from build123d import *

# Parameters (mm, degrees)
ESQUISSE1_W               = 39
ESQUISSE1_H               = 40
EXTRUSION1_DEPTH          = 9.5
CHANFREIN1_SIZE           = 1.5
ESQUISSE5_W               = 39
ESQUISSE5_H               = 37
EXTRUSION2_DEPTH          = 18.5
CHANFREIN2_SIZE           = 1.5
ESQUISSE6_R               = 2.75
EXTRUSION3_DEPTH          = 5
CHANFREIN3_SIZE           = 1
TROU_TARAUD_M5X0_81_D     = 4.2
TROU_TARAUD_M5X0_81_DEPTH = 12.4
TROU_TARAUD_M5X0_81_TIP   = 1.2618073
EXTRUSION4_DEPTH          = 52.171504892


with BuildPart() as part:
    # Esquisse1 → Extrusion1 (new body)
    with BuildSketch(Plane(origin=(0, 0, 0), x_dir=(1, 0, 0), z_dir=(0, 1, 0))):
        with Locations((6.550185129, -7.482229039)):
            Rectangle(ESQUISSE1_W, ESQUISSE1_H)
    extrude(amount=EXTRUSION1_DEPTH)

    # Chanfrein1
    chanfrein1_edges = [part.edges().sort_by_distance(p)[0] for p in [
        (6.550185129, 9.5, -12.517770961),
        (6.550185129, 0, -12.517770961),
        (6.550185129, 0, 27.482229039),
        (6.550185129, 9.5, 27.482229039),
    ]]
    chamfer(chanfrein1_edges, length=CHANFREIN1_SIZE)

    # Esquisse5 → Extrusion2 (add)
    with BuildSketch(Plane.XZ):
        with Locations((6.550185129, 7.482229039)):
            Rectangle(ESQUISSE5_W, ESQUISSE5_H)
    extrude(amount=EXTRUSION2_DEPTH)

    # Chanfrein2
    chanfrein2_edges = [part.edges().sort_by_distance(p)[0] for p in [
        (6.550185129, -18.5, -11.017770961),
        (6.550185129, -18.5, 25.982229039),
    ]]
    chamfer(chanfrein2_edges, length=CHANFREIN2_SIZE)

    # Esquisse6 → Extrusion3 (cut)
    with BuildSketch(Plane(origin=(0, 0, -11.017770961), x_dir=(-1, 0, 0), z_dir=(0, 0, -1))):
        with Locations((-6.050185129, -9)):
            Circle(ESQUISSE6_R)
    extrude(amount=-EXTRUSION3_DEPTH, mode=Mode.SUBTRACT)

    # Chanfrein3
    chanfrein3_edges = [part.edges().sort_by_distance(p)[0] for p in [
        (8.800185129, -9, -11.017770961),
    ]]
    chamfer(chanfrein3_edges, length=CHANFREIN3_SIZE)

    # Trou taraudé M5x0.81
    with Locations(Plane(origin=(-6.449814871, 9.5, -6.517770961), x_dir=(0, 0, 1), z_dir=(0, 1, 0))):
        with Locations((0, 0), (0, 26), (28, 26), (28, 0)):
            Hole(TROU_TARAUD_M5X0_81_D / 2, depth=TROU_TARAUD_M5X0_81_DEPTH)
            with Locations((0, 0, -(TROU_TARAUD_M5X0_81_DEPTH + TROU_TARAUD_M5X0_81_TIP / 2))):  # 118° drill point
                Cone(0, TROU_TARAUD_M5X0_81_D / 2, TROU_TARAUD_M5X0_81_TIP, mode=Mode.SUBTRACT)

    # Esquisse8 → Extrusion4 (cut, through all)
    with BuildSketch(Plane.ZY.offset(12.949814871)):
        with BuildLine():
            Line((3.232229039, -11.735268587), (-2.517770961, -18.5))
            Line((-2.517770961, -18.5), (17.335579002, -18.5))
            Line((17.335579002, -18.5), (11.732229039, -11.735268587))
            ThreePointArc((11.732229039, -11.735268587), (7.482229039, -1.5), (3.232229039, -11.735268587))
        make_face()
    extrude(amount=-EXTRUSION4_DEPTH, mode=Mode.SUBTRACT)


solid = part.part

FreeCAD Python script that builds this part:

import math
import FreeCAD as App
import Part
import Sketcher


def edges_at(feature, points):
    """Names of the edges that pass closest to the given points."""
    edges = feature.Shape.Edges
    near = lambda p: min(range(len(edges)), key=lambda i: edges[i].distToShape(Part.Vertex(*p))[0])
    return sorted({f"Edge{near(p) + 1}" for p in points})

doc = App.newDocument("Part")
body = doc.addObject("PartDesign::Body", "Body")

# Sketch on XZ plane
sketch1 = body.newObject("Sketcher::SketchObject", "Sketch")
sketch1.AttachmentSupport = (doc.getObject("XZ_Plane"), [""])
sketch1.MapMode = "FlatFace"
sketch1.addGeometry(Part.LineSegment(App.Vector(-13, -13, 0), App.Vector(-13, 27, 0)), False)
sketch1.addGeometry(Part.LineSegment(App.Vector(-13, 27, 0), App.Vector(26, 27, 0)), False)
sketch1.addGeometry(Part.LineSegment(App.Vector(26, 27, 0), App.Vector(26, -13, 0)), False)
sketch1.addGeometry(Part.LineSegment(App.Vector(26, -13, 0), App.Vector(-13, -13, 0)), False)
sketch1.addConstraint(Sketcher.Constraint("Coincident", 0, 2, 1, 1))
sketch1.addConstraint(Sketcher.Constraint("Coincident", 1, 2, 2, 1))
sketch1.addConstraint(Sketcher.Constraint("Coincident", 2, 2, 3, 1))
sketch1.addConstraint(Sketcher.Constraint("Coincident", 3, 2, 0, 1))
sketch1.addConstraint(Sketcher.Constraint("Vertical", 0))
sketch1.addConstraint(Sketcher.Constraint("Horizontal", 1))
sketch1.addConstraint(Sketcher.Constraint("Vertical", 2))
sketch1.addConstraint(Sketcher.Constraint("Horizontal", 3))
sketch1.addConstraint(Sketcher.Constraint("DistanceX", 1, 1, 1, 2, 39.0))
sketch1.addConstraint(Sketcher.Constraint("DistanceY", 0, 1, 0, 2, 40.0))
sketch1.addConstraint(Sketcher.Constraint("DistanceY", -1, 1, 0, 2, 27.482229))
sketch1.addConstraint(Sketcher.Constraint("DistanceX", 0, 2, -1, 1, 12.949815))
pad1 = body.newObject("PartDesign::Pad", "Pad")
pad1.Profile = sketch1
pad1.Length = 9.5
pad1.Reversed = True
doc.recompute()

chamfer = body.newObject("PartDesign::Chamfer", "Chamfer")
chamfer.Base = (pad1, edges_at(pad1, [
    (6.55, 9.5, -12.518),
    (6.55, 0, -12.518),
    (6.55, 0, 27.482),
    (6.55, 9.5, 27.482),
]))
chamfer.Size = 1.5

# Sketch on XZ plane
sketch2 = body.newObject("Sketcher::SketchObject", "Sketch001")
sketch2.AttachmentSupport = (doc.getObject("XZ_Plane"), [""])
sketch2.MapMode = "FlatFace"
sketch2.addGeometry(Part.LineSegment(App.Vector(-13, 26, 0), App.Vector(-13, -11, 0)), False)
sketch2.addGeometry(Part.LineSegment(App.Vector(-13, -11, 0), App.Vector(26, -11, 0)), False)
sketch2.addGeometry(Part.LineSegment(App.Vector(26, -11, 0), App.Vector(26, 26, 0)), False)
sketch2.addGeometry(Part.LineSegment(App.Vector(26, 26, 0), App.Vector(-13, 26, 0)), False)
sketch2.addConstraint(Sketcher.Constraint("Coincident", 0, 2, 1, 1))
sketch2.addConstraint(Sketcher.Constraint("Coincident", 1, 2, 2, 1))
sketch2.addConstraint(Sketcher.Constraint("Coincident", 2, 2, 3, 1))
sketch2.addConstraint(Sketcher.Constraint("Coincident", 3, 2, 0, 1))
sketch2.addConstraint(Sketcher.Constraint("Vertical", 0))
sketch2.addConstraint(Sketcher.Constraint("Horizontal", 1))
sketch2.addConstraint(Sketcher.Constraint("Vertical", 2))
sketch2.addConstraint(Sketcher.Constraint("Horizontal", 3))
sketch2.addConstraint(Sketcher.Constraint("DistanceX", 1, 1, 1, 2, 39.0))
sketch2.addConstraint(Sketcher.Constraint("DistanceY", 0, 2, 0, 1, 37.0))
sketch2.addConstraint(Sketcher.Constraint("DistanceY", 0, 2, -1, 1, 11.017771))
sketch2.addConstraint(Sketcher.Constraint("DistanceX", 0, 2, -1, 1, 12.949815))
pad2 = body.newObject("PartDesign::Pad", "Pad001")
pad2.Profile = sketch2
pad2.Length = 18.5
doc.recompute()

chamfer2 = body.newObject("PartDesign::Chamfer", "Chamfer001")
chamfer2.Base = (pad2, edges_at(pad2, [(6.55, -18.5, -11.018), (6.55, -18.5, 25.982)]))
chamfer2.Size = 1.5

# Sketch on XY plane
sketch3 = body.newObject("Sketcher::SketchObject", "Sketch002")
sketch3.AttachmentSupport = (doc.getObject("XY_Plane"), [""])
sketch3.MapMode = "FlatFace"
sketch3.AttachmentOffset = App.Placement(App.Vector(0, 0, -11.017771), App.Rotation())
sketch3.addGeometry(Part.Circle(App.Vector(6.1, -9, 0), App.Vector(0, 0, 1), 2.8), False)
sketch3.addConstraint(Sketcher.Constraint("Diameter", 0, 5.5))
sketch3.addConstraint(Sketcher.Constraint("DistanceY", 0, 3, -1, 1, 9.0))
sketch3.addConstraint(Sketcher.Constraint("DistanceX", -1, 1, 0, 3, 6.050185))
pocket1 = body.newObject("PartDesign::Pocket", "Pocket")
pocket1.Profile = sketch3
pocket1.Length = 5
pocket1.Reversed = True
doc.recompute()

chamfer3 = body.newObject("PartDesign::Chamfer", "Chamfer002")
chamfer3.Base = (pocket1, edges_at(pocket1, [(8.8, -9, -11.018)]))
chamfer3.Size = 1

# Sketch on XZ plane
sketch4 = body.newObject("Sketcher::SketchObject", "Sketch003")
sketch4.AttachmentSupport = (doc.getObject("XZ_Plane"), [""])
sketch4.MapMode = "FlatFace"
sketch4.AttachmentOffset = App.Placement(App.Vector(0, 0, -9.5), App.Rotation())
sketch4.addGeometry(Part.Circle(App.Vector(-6.4, -6.5, 0), App.Vector(0, 0, 1), 2.1), False)
sketch4.addGeometry(Part.Circle(App.Vector(19.6, -6.5, 0), App.Vector(0, 0, 1), 2.1), False)
sketch4.addGeometry(Part.Circle(App.Vector(19.6, 21.5, 0), App.Vector(0, 0, 1), 2.1), False)
sketch4.addGeometry(Part.Circle(App.Vector(-6.4, 21.5, 0), App.Vector(0, 0, 1), 2.1), False)
sketch4.addConstraint(Sketcher.Constraint("Equal", 0, 1))
sketch4.addConstraint(Sketcher.Constraint("Equal", 1, 2))
sketch4.addConstraint(Sketcher.Constraint("Equal", 2, 3))
sketch4.addConstraint(Sketcher.Constraint("Horizontal", 0, 3, 1, 3))
sketch4.addConstraint(Sketcher.Constraint("Horizontal", 2, 3, 3, 3))
sketch4.addConstraint(Sketcher.Constraint("Vertical", 1, 3, 2, 3))
sketch4.addConstraint(Sketcher.Constraint("Vertical", 0, 3, 3, 3))
sketch4.addConstraint(Sketcher.Constraint("Diameter", 0, 4.2))
sketch4.addConstraint(Sketcher.Constraint("DistanceX", 0, 3, 1, 3, 26.0))
sketch4.addConstraint(Sketcher.Constraint("DistanceY", 1, 3, 2, 3, 28.0))
sketch4.addConstraint(Sketcher.Constraint("DistanceY", 0, 3, -1, 1, 6.517771))
sketch4.addConstraint(Sketcher.Constraint("DistanceX", 0, 3, -1, 1, 6.449815))
doc.recompute()
hole = body.newObject("PartDesign::Hole", "Hole")
hole.Profile = sketch4
hole.ThreadType = "None"
hole.Diameter = 4.2
hole.DepthType = "Dimension"
hole.Depth = 12.4
hole.DrillPoint = "Angled"
hole.DrillPointAngle = 118
hole.Reversed = True

# Sketch on YZ plane
sketch5 = body.newObject("Sketcher::SketchObject", "Sketch004")
sketch5.AttachmentSupport = (doc.getObject("YZ_Plane"), [""])
sketch5.MapMode = "FlatFace"
sketch5.AttachmentOffset = App.Placement(App.Vector(0, 0, -12.949815), App.Rotation())
sketch5.addGeometry(Part.LineSegment(App.Vector(-12, 3, 0), App.Vector(-18, -3, 0)), False)
sketch5.addGeometry(Part.LineSegment(App.Vector(-18, -3, 0), App.Vector(-18, 17, 0)), False)
sketch5.addGeometry(Part.LineSegment(App.Vector(-18, 17, 0), App.Vector(-12, 12, 0)), False)
sketch5.addGeometry(Part.ArcOfCircle(Part.Circle(App.Vector(-8, 7, 0), App.Vector(0, 0, 1), 6), math.radians(-135), math.radians(135)), False)
sketch5.addConstraint(Sketcher.Constraint("Coincident", 0, 2, 1, 1))
sketch5.addConstraint(Sketcher.Constraint("Coincident", 1, 2, 2, 1))
sketch5.addConstraint(Sketcher.Constraint("Coincident", 2, 2, 3, 2))
sketch5.addConstraint(Sketcher.Constraint("Coincident", 3, 1, 0, 1))
sketch5.addConstraint(Sketcher.Constraint("Vertical", 1))
sketch5.addConstraint(Sketcher.Constraint("Vertical", 2, 2, 3, 1))
sketch5.addConstraint(Sketcher.Constraint("Radius", 3, 6.0))
sketch5.addConstraint(Sketcher.Constraint("DistanceX", 0, 2, 3, 3, 11.0))
sketch5.addConstraint(Sketcher.Constraint("DistanceY", 0, 2, 3, 3, 10.0))
sketch5.addConstraint(Sketcher.Constraint("DistanceX", 3, 3, -1, 1, 7.5))
sketch5.addConstraint(Sketcher.Constraint("DistanceY", 3, 1, 2, 2, 8.5))
sketch5.addConstraint(Sketcher.Constraint("DistanceY", 1, 1, 1, 2, 19.85335))
sketch5.addConstraint(Sketcher.Constraint("DistanceY", -1, 1, 3, 3, 7.482229))
pocket2 = body.newObject("PartDesign::Pocket", "Pocket001")
pocket2.Profile = sketch5
pocket2.Type = "ThroughAll"
pocket2.Reversed = True

doc.recompute()
